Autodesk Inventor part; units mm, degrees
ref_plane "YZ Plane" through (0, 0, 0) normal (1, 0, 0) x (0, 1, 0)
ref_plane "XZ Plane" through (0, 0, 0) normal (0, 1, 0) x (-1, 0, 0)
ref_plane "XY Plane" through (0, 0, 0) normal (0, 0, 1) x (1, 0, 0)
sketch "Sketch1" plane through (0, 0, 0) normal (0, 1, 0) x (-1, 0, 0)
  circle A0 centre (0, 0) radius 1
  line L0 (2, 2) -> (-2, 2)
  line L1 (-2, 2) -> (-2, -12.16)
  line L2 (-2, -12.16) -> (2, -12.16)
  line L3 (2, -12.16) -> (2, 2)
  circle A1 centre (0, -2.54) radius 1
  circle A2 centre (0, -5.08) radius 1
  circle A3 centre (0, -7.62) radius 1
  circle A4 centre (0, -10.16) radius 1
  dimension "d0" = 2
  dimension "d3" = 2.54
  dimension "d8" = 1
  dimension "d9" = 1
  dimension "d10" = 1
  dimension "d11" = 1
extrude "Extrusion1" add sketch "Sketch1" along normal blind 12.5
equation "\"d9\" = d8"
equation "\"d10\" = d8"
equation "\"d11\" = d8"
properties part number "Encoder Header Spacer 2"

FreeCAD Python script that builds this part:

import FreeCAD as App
import Part
import Sketcher

doc = App.newDocument("Part")
body = doc.addObject("PartDesign::Body", "Body")

# Sketch on XZ plane
sketch1 = body.newObject("Sketcher::SketchObject", "Sketch")
sketch1.AttachmentSupport = (doc.getObject("XZ_Plane"), [""])
sketch1.MapMode = "FlatFace"
sketch1.addGeometry(Part.LineSegment(App.Vector(-2, -12.2, 0), App.Vector(-2, 2, 0)), False)
sketch1.addGeometry(Part.LineSegment(App.Vector(-2, 2, 0), App.Vector(2, 2, 0)), False)
sketch1.addGeometry(Part.LineSegment(App.Vector(2, 2, 0), App.Vector(2, -12.2, 0)), False)
sketch1.addGeometry(Part.LineSegment(App.Vector(2, -12.2, 0), App.Vector(-2, -12.2, 0)), False)
sketch1.addGeometry(Part.Circle(App.Vector(0, -10.2, 0), App.Vector(0, 0, 1), 1), False)
sketch1.addGeometry(Part.Circle(App.Vector(0, -7.6, 0), App.Vector(0, 0, 1), 1), False)
sketch1.addGeometry(Part.Circle(App.Vector(0, -5.1, 0), App.Vector(0, 0, 1), 1), False)
sketch1.addGeometry(Part.Circle(App.Vector(0, -2.5, 0), App.Vector(0, 0, 1), 1), False)
sketch1.addGeometry(Part.Circle(App.Vector(0, 0, 0), App.Vector(0, 0, 1), 1), False)
sketch1.addConstraint(Sketcher.Constraint("Coincident", 0, 2, 1, 1))
sketch1.addConstraint(Sketcher.Constraint("Coincident", 1, 2, 2, 1))
sketch1.addConstraint(Sketcher.Constraint("Coincident", 2, 2, 3, 1))
sketch1.addConstraint(Sketcher.Constraint("Coincident", 3, 2, 0, 1))
sketch1.addConstraint(Sketcher.Constraint("Vertical", 0))
sketch1.addConstraint(Sketcher.Constraint("Horizontal", 1))
sketch1.addConstraint(Sketcher.Constraint("Vertical", 2))
sketch1.addConstraint(Sketcher.Constraint("Horizontal", 3))
sketch1.addConstraint(Sketcher.Constraint("Coincident", 8, 3, -1, 1))
sketch1.addConstraint(Sketcher.Constraint("Equal", 4, 5))
sketch1.addConstraint(Sketcher.Constraint("Equal", 5, 6))
sketch1.addConstraint(Sketcher.Constraint("Equal", 6, 7))
sketch1.addConstraint(Sketcher.Constraint("Equal", 7, 8))
sketch1.addConstraint(Sketcher.Constraint("PointOnObject", 4, 3, -2))
sketch1.addConstraint(Sketcher.Constraint("PointOnObject", 5, 3, -2))
sketch1.addConstraint(Sketcher.Constraint("PointOnObject", 6, 3, -2))
sketch1.addConstraint(Sketcher.Constraint("PointOnObject", 7, 3, -2))
sketch1.addConstraint(Sketcher.Constraint("Diameter", 4, 2.0))
sketch1.addConstraint(Sketcher.Constraint("DistanceX", 0, 2, -1, 1, 2.0))
sketch1.addConstraint(Sketcher.Constraint("DistanceY", -1, 1, 0, 2, 2.0))
sketch1.addConstraint(Sketcher.Constraint("DistanceX", -1, 1, 1, 2, 2.0))
sketch1.addConstraint(Sketcher.Constraint("DistanceY", 2, 2, 4, 3, 2.0))
sketch1.addConstraint(Sketcher.Constraint("DistanceY", 7, 3, -1, 1, 2.54))
sketch1.addConstraint(Sketcher.Constraint("DistanceY", 4, 3, 5, 3, 2.54))
sketch1.addConstraint(Sketcher.Constraint("DistanceY", 5, 3, 6, 3, 2.54))
sketch1.addConstraint(Sketcher.Constraint("DistanceY", 6, 3, 7, 3, 2.54))
pad1 = body.newObject("PartDesign::Pad", "Pad")
pad1.Profile = sketch1
pad1.Length = 12.5
pad1.Reversed = True

doc.recompute()
